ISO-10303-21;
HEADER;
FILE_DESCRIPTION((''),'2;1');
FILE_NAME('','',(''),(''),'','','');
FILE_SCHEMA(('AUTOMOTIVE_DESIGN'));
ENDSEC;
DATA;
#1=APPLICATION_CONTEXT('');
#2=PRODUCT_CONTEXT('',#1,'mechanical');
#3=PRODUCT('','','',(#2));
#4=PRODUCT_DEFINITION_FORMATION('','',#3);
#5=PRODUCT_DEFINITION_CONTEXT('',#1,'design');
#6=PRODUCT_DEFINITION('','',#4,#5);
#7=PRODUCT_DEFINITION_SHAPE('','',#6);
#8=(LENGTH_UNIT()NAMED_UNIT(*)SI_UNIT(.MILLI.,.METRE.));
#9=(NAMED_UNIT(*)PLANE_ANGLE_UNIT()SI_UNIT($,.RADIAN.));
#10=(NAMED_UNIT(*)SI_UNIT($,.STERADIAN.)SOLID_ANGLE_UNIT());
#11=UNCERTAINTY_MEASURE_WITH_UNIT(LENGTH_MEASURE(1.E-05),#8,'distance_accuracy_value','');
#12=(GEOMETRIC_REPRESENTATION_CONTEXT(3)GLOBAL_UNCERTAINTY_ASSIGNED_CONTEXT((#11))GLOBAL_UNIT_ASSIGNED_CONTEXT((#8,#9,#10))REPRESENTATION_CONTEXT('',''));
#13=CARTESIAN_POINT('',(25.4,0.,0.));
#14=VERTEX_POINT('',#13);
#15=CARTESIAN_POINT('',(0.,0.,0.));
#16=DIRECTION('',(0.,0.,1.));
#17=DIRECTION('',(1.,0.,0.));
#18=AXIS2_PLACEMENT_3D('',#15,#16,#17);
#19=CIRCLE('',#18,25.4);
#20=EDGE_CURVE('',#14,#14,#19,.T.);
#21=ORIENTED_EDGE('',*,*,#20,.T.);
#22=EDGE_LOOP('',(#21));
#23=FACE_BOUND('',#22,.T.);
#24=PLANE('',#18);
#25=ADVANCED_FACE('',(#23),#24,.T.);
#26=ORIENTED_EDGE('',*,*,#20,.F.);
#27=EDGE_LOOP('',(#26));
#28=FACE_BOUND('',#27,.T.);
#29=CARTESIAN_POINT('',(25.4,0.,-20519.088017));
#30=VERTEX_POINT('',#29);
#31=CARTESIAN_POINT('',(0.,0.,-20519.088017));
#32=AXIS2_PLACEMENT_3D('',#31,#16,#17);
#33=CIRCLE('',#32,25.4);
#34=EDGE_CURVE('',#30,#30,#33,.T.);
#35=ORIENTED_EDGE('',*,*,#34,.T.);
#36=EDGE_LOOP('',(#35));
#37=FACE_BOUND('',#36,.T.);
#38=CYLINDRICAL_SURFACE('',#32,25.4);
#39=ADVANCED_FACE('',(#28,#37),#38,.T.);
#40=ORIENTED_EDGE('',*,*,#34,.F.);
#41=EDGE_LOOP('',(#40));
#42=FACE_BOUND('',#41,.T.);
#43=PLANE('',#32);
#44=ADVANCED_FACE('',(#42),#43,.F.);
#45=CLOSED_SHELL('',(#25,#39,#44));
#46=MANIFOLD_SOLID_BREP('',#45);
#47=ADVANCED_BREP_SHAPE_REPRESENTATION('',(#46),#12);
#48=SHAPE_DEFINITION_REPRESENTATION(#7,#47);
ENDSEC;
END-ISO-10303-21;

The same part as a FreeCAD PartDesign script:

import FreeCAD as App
import Part
import Sketcher

V = App.Vector
Q = App.Units.Quantity

doc = App.newDocument("Part")
params = doc.addObject("Spreadsheet::Sheet", "Params")
for row, (alias, value) in enumerate([
    ("sketch1_diameter", "2 in"),
    ("pad1_length", "20519.088017 mm"),
], start=1):
    params.set(f"A{row}", alias)
    params.set(f"B{row}", "=" + value)
    params.setAlias(f"B{row}", alias)

body = doc.addObject("PartDesign::Body", "Body")

sketch1 = doc.addObject("Sketcher::SketchObject", "Sketch")
body.addObject(sketch1)
sketch1.AttachmentSupport = (doc.XY_Plane, [""])
sketch1.MapMode = "FlatFace"
sketch1.addGeometry(Part.Circle(V(0, 0, 0), V(0, 0, 1), 25.4), False)
sketch1.addConstraint([
    Sketcher.Constraint("Coincident", 0, 3, -1, 1),
    Sketcher.Constraint("Diameter", 0, Q("2 in")),
])
sketch1.setExpression("Constraints[1]", "Params.sketch1_diameter")
pad1 = doc.addObject("PartDesign::Pad", "Pad")
body.addObject(pad1)
pad1.Profile = sketch1
pad1.setExpression("Length", "Params.pad1_length")
pad1.Reversed = True

doc.recompute()
